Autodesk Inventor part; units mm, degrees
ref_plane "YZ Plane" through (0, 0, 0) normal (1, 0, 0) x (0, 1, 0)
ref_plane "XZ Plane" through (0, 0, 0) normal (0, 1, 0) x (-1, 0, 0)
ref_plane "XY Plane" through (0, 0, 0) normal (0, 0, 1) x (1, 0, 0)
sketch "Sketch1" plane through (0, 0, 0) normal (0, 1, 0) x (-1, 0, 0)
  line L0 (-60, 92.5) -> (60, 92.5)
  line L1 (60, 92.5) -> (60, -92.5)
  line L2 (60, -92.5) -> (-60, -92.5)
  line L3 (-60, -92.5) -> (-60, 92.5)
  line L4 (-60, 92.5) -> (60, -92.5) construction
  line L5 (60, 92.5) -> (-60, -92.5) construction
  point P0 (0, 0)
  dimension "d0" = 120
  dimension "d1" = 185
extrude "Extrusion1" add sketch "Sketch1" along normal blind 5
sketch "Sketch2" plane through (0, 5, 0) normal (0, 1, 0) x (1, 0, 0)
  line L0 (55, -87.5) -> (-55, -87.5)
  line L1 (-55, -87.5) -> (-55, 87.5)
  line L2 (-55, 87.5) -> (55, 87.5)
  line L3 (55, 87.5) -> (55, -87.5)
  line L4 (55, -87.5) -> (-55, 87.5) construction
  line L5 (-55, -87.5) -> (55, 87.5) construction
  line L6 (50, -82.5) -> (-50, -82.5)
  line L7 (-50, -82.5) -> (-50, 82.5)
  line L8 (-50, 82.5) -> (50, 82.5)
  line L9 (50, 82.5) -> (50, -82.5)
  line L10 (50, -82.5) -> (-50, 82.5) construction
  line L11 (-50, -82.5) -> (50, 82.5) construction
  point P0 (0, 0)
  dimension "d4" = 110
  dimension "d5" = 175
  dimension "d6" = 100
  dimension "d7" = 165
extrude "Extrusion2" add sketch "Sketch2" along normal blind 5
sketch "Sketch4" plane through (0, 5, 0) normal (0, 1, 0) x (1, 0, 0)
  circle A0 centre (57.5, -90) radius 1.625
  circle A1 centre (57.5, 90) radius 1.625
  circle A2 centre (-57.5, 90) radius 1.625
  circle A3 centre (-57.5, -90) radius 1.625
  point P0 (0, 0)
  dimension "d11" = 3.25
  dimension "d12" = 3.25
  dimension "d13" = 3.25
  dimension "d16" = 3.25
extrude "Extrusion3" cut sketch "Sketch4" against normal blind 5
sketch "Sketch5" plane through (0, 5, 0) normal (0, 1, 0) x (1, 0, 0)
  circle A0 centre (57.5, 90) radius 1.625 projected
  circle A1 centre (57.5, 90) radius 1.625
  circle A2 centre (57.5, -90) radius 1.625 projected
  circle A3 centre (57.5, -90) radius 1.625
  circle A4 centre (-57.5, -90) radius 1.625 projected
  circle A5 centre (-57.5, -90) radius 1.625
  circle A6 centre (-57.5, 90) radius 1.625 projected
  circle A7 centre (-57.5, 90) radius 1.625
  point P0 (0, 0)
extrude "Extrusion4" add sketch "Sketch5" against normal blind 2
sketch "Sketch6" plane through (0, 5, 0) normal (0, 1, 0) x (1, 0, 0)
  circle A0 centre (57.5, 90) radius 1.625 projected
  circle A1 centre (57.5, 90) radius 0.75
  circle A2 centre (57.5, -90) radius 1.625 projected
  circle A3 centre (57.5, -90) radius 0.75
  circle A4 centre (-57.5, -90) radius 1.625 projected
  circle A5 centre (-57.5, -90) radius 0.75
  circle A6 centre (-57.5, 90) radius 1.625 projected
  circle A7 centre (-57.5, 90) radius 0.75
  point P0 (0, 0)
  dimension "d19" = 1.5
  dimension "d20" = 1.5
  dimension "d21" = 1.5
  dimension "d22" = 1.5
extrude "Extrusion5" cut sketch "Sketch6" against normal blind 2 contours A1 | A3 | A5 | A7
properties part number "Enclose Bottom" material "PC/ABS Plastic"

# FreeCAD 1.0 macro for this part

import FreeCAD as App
import Part
import Sketcher


def add_polygon(sketch, points):
    """Adds a closed chain of lines whose ends are joined by coincident constraints."""
    first, n = sketch.GeometryCount, len(points)
    for a, b in zip(points, points[1:] + points[:1]):
        sketch.addGeometry(Part.LineSegment(App.Vector(*a, 0), App.Vector(*b, 0)), False)
    for i in range(n):
        sketch.addConstraint(Sketcher.Constraint("Coincident", first + i, 2, first + (i + 1) % n, 1))

doc = App.newDocument("Part")
body = doc.addObject("PartDesign::Body", "Body")

sketch1 = doc.addObject("Sketcher::SketchObject", "Sketch")
body.addObject(sketch1)
sketch1.AttachmentSupport = (doc.XZ_Plane, [""])
sketch1.MapMode = "FlatFace"
add_polygon(sketch1, [(-60, 92.5), (60, 92.5), (60, -92.5), (-60, -92.5)])
sketch1.addConstraint([
    Sketcher.Constraint("Horizontal", 0),
    Sketcher.Constraint("Vertical", 1),
    Sketcher.Constraint("Horizontal", 2),
    Sketcher.Constraint("Vertical", 3),
    Sketcher.Constraint("Symmetric", 0, 2, 2, 2, -1, 1),
    Sketcher.Constraint("DistanceX", 0, 1, 0, 2, 120.0),
    Sketcher.Constraint("DistanceY", 1, 2, 1, 1, 185.0),
])
pad1 = doc.addObject("PartDesign::Pad", "Pad")
body.addObject(pad1)
pad1.Profile = sketch1
pad1.Length = 5
pad1.Reversed = True

sketch2 = doc.addObject("Sketcher::SketchObject", "Sketch001")
body.addObject(sketch2)
sketch2.AttachmentSupport = (doc.XZ_Plane, [""])
sketch2.MapMode = "FlatFace"
sketch2.AttachmentOffset = App.Placement(App.Vector(0, 0, -5), App.Rotation())
add_polygon(sketch2, [(-55, 87.5), (55, 87.5), (55, -87.5), (-55, -87.5)])
add_polygon(sketch2, [(50, -82.5), (50, 82.5), (-50, 82.5), (-50, -82.5)])
sketch2.addConstraint([
    Sketcher.Constraint("Horizontal", 0),
    Sketcher.Constraint("Vertical", 1),
    Sketcher.Constraint("Horizontal", 2),
    Sketcher.Constraint("Vertical", 3),
    Sketcher.Constraint("Vertical", 4),
    Sketcher.Constraint("Horizontal", 5),
    Sketcher.Constraint("Vertical", 6),
    Sketcher.Constraint("Horizontal", 7),
    Sketcher.Constraint("Symmetric", 0, 2, 2, 2, -1, 1),
    Sketcher.Constraint("Symmetric", 4, 2, 6, 2, -1, 1),
    Sketcher.Constraint("DistanceX", 0, 1, 0, 2, 110.0),
    Sketcher.Constraint("DistanceX", 5, 2, 5, 1, 100.0),
    Sketcher.Constraint("DistanceY", 1, 2, 1, 1, 175.0),
    Sketcher.Constraint("DistanceY", 4, 1, 4, 2, 165.0),
])
pad2 = doc.addObject("PartDesign::Pad", "Pad001")
body.addObject(pad2)
pad2.Profile = sketch2
pad2.Length = 5
pad2.Reversed = True

sketch3 = doc.addObject("Sketcher::SketchObject", "Sketch002")
body.addObject(sketch3)
sketch3.AttachmentSupport = (doc.XZ_Plane, [""])
sketch3.MapMode = "FlatFace"
sketch3.AttachmentOffset = App.Placement(App.Vector(0, 0, -5), App.Rotation())
sketch3.addGeometry([
    Part.Circle(App.Vector(57.5, 90, 0), App.Vector(0, 0, 1), 1.625),
    Part.Circle(App.Vector(57.5, -90, 0), App.Vector(0, 0, 1), 1.625),
    Part.Circle(App.Vector(-57.5, -90, 0), App.Vector(0, 0, 1), 1.625),
    Part.Circle(App.Vector(-57.5, 90, 0), App.Vector(0, 0, 1), 1.625),
], False)
sketch3.addConstraint([
    Sketcher.Constraint("Equal", 0, 1),
    Sketcher.Constraint("Equal", 1, 2),
    Sketcher.Constraint("Equal", 2, 3),
    Sketcher.Constraint("Symmetric", 0, 3, 2, 3, -1, 1),
    Sketcher.Constraint("Symmetric", 1, 3, 3, 3, -1, 1),
    Sketcher.Constraint("Symmetric", 1, 3, 2, 3, -2),
    Sketcher.Constraint("Diameter", 0, 3.25),
    Sketcher.Constraint("DistanceY", -1, 1, 0, 3, 90.0),
    Sketcher.Constraint("DistanceX", 2, 3, 1, 3, 115.0),
])
pocket1 = doc.addObject("PartDesign::Pocket", "Pocket")
body.addObject(pocket1)
pocket1.Profile = sketch3
pocket1.Length = 5
pocket1.Reversed = True

sketch4 = doc.addObject("Sketcher::SketchObject", "Sketch003")
body.addObject(sketch4)
sketch4.AttachmentSupport = (doc.XZ_Plane, [""])
sketch4.MapMode = "FlatFace"
sketch4.AttachmentOffset = App.Placement(App.Vector(0, 0, -5), App.Rotation())
sketch4.addGeometry([
    Part.Circle(App.Vector(57.5, -90, 0), App.Vector(0, 0, 1), 1.625),
    Part.Circle(App.Vector(57.5, 90, 0), App.Vector(0, 0, 1), 1.625),
    Part.Circle(App.Vector(-57.5, 90, 0), App.Vector(0, 0, 1), 1.625),
    Part.Circle(App.Vector(-57.5, -90, 0), App.Vector(0, 0, 1), 1.625),
], False)
sketch4.addConstraint([
    Sketcher.Constraint("Equal", 0, 1),
    Sketcher.Constraint("Equal", 1, 2),
    Sketcher.Constraint("Equal", 2, 3),
    Sketcher.Constraint("Symmetric", 0, 3, 2, 3, -1, 1),
    Sketcher.Constraint("Symmetric", 1, 3, 3, 3, -1, 1),
    Sketcher.Constraint("Symmetric", 1, 3, 2, 3, -2),
    Sketcher.Constraint("Diameter", 0, 3.25),
    Sketcher.Constraint("DistanceY", 0, 3, -1, 1, 90.0),
    Sketcher.Constraint("DistanceX", 2, 3, 1, 3, 115.0),
])
pad3 = doc.addObject("PartDesign::Pad", "Pad002")
body.addObject(pad3)
pad3.Profile = sketch4
pad3.Length = 2

sketch5 = doc.addObject("Sketcher::SketchObject", "Sketch004")
body.addObject(sketch5)
sketch5.AttachmentSupport = (doc.XZ_Plane, [""])
sketch5.MapMode = "FlatFace"
sketch5.AttachmentOffset = App.Placement(App.Vector(0, 0, -5), App.Rotation())
sketch5.addGeometry([
    Part.Circle(App.Vector(57.5, -90, 0), App.Vector(0, 0, 1), 0.75),
    Part.Circle(App.Vector(57.5, 90, 0), App.Vector(0, 0, 1), 0.75),
    Part.Circle(App.Vector(-57.5, 90, 0), App.Vector(0, 0, 1), 0.75),
    Part.Circle(App.Vector(-57.5, -90, 0), App.Vector(0, 0, 1), 0.75),
], False)
sketch5.addConstraint([
    Sketcher.Constraint("Equal", 0, 1),
    Sketcher.Constraint("Equal", 1, 2),
    Sketcher.Constraint("Equal", 2, 3),
    Sketcher.Constraint("Symmetric", 0, 3, 2, 3, -1, 1),
    Sketcher.Constraint("Symmetric", 1, 3, 3, 3, -1, 1),
    Sketcher.Constraint("Symmetric", 1, 3, 2, 3, -2),
    Sketcher.Constraint("Diameter", 0, 1.5),
    Sketcher.Constraint("DistanceY", 0, 3, -1, 1, 90.0),
    Sketcher.Constraint("DistanceX", 2, 3, 1, 3, 115.0),
])
pocket2 = doc.addObject("PartDesign::Pocket", "Pocket001")
body.addObject(pocket2)
pocket2.Profile = sketch5
pocket2.Length = 2
pocket2.Reversed = True

doc.recompute()
